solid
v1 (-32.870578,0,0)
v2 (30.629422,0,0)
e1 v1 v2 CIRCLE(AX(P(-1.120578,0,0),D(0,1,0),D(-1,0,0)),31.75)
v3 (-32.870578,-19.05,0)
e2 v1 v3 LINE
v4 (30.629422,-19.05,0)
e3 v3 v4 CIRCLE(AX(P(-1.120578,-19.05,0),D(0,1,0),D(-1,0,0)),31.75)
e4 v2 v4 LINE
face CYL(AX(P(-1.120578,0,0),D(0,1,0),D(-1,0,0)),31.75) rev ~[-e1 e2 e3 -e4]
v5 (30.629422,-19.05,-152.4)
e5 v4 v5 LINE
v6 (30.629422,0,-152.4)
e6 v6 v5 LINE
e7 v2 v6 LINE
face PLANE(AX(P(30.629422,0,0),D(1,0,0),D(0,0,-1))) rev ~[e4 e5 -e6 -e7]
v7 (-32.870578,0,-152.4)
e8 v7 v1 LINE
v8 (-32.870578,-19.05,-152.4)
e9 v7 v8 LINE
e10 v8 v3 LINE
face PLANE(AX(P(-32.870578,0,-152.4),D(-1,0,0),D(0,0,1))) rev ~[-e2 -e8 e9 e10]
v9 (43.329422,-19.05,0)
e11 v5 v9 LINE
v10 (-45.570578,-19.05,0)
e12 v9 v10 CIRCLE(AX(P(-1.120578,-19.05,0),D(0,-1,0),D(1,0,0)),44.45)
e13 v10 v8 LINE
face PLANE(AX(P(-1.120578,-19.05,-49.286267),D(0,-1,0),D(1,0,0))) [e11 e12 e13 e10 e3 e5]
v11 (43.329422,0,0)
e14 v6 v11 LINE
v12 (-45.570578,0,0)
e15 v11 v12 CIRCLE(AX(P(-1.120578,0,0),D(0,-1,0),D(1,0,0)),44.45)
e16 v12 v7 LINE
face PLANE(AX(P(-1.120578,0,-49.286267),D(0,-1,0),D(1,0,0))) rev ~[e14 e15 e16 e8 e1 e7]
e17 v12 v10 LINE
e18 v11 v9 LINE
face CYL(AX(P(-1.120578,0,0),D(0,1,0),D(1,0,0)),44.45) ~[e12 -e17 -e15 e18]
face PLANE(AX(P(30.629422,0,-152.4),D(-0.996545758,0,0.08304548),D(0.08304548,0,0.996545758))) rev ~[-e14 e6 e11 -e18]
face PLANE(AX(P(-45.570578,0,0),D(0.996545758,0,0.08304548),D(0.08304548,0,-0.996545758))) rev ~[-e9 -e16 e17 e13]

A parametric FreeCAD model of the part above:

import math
import FreeCAD as App
import Part
import Sketcher
from FreeCAD import Vector
Q = App.Units.Quantity

doc = App.newDocument("Part")
body = doc.addObject("PartDesign::Body", "Body")

sketch1 = body.newObject("Sketcher::SketchObject", "Sketch")
sketch1.AttachmentSupport = (doc.getObject("XZ_Plane"), [""])
sketch1.MapMode = "FlatFace"
sketch1.addGeometry([
    Part.ArcOfCircle(Part.Circle(Vector(-1, 0, 0), Vector(0, 0, 1), 32), math.radians(0), math.radians(180)),
    Part.LineSegment(Vector(31, 0, 0), Vector(31, -152, 0)),
    Part.LineSegment(Vector(31, -152, 0), Vector(43, 0, 0)),
    Part.ArcOfCircle(Part.Circle(Vector(-1, 0, 0), Vector(0, 0, 1), 44), math.radians(0), math.radians(180)),
    Part.LineSegment(Vector(-46, 0, 0), Vector(-33, -152, 0)),
    Part.LineSegment(Vector(-33, -152, 0), Vector(-33, 0, 0)),
], False)
sketch1.addConstraint([
    Sketcher.Constraint("Tangent", 0, 1, 1, 1),
    Sketcher.Constraint("Coincident", 1, 2, 2, 1),
    Sketcher.Constraint("Coincident", 2, 2, 3, 1),
    Sketcher.Constraint("Coincident", 3, 2, 4, 1),
    Sketcher.Constraint("Coincident", 4, 2, 5, 1),
    Sketcher.Constraint("Tangent", 5, 2, 0, 2),
    Sketcher.Constraint("Vertical", 1),
    Sketcher.Constraint("Vertical", 5),
    Sketcher.Constraint("Coincident", 3, 3, 0, 3),
    Sketcher.Constraint("PointOnObject", 0, 3, -1),
    Sketcher.Constraint("PointOnObject", 2, 2, -1),
    Sketcher.Constraint("PointOnObject", 3, 2, -1),
    Sketcher.Constraint("Horizontal", 1, 2, 4, 2),
    Sketcher.Constraint("DistanceY", 1, 2, 1, 1, Q("6 in")),
    Sketcher.Constraint("Radius", 0, Q("1.25 in")),
    Sketcher.Constraint("Radius", 3, Q("1.75 in")),
    Sketcher.Constraint("DistanceX", 0, 3, -1, 1, Q("1.120578 mm")),
])
pad1 = body.newObject("PartDesign::Pad", "Pad")
pad1.Profile = sketch1
pad1.Length = Q("0.75 in")

doc.recompute()
